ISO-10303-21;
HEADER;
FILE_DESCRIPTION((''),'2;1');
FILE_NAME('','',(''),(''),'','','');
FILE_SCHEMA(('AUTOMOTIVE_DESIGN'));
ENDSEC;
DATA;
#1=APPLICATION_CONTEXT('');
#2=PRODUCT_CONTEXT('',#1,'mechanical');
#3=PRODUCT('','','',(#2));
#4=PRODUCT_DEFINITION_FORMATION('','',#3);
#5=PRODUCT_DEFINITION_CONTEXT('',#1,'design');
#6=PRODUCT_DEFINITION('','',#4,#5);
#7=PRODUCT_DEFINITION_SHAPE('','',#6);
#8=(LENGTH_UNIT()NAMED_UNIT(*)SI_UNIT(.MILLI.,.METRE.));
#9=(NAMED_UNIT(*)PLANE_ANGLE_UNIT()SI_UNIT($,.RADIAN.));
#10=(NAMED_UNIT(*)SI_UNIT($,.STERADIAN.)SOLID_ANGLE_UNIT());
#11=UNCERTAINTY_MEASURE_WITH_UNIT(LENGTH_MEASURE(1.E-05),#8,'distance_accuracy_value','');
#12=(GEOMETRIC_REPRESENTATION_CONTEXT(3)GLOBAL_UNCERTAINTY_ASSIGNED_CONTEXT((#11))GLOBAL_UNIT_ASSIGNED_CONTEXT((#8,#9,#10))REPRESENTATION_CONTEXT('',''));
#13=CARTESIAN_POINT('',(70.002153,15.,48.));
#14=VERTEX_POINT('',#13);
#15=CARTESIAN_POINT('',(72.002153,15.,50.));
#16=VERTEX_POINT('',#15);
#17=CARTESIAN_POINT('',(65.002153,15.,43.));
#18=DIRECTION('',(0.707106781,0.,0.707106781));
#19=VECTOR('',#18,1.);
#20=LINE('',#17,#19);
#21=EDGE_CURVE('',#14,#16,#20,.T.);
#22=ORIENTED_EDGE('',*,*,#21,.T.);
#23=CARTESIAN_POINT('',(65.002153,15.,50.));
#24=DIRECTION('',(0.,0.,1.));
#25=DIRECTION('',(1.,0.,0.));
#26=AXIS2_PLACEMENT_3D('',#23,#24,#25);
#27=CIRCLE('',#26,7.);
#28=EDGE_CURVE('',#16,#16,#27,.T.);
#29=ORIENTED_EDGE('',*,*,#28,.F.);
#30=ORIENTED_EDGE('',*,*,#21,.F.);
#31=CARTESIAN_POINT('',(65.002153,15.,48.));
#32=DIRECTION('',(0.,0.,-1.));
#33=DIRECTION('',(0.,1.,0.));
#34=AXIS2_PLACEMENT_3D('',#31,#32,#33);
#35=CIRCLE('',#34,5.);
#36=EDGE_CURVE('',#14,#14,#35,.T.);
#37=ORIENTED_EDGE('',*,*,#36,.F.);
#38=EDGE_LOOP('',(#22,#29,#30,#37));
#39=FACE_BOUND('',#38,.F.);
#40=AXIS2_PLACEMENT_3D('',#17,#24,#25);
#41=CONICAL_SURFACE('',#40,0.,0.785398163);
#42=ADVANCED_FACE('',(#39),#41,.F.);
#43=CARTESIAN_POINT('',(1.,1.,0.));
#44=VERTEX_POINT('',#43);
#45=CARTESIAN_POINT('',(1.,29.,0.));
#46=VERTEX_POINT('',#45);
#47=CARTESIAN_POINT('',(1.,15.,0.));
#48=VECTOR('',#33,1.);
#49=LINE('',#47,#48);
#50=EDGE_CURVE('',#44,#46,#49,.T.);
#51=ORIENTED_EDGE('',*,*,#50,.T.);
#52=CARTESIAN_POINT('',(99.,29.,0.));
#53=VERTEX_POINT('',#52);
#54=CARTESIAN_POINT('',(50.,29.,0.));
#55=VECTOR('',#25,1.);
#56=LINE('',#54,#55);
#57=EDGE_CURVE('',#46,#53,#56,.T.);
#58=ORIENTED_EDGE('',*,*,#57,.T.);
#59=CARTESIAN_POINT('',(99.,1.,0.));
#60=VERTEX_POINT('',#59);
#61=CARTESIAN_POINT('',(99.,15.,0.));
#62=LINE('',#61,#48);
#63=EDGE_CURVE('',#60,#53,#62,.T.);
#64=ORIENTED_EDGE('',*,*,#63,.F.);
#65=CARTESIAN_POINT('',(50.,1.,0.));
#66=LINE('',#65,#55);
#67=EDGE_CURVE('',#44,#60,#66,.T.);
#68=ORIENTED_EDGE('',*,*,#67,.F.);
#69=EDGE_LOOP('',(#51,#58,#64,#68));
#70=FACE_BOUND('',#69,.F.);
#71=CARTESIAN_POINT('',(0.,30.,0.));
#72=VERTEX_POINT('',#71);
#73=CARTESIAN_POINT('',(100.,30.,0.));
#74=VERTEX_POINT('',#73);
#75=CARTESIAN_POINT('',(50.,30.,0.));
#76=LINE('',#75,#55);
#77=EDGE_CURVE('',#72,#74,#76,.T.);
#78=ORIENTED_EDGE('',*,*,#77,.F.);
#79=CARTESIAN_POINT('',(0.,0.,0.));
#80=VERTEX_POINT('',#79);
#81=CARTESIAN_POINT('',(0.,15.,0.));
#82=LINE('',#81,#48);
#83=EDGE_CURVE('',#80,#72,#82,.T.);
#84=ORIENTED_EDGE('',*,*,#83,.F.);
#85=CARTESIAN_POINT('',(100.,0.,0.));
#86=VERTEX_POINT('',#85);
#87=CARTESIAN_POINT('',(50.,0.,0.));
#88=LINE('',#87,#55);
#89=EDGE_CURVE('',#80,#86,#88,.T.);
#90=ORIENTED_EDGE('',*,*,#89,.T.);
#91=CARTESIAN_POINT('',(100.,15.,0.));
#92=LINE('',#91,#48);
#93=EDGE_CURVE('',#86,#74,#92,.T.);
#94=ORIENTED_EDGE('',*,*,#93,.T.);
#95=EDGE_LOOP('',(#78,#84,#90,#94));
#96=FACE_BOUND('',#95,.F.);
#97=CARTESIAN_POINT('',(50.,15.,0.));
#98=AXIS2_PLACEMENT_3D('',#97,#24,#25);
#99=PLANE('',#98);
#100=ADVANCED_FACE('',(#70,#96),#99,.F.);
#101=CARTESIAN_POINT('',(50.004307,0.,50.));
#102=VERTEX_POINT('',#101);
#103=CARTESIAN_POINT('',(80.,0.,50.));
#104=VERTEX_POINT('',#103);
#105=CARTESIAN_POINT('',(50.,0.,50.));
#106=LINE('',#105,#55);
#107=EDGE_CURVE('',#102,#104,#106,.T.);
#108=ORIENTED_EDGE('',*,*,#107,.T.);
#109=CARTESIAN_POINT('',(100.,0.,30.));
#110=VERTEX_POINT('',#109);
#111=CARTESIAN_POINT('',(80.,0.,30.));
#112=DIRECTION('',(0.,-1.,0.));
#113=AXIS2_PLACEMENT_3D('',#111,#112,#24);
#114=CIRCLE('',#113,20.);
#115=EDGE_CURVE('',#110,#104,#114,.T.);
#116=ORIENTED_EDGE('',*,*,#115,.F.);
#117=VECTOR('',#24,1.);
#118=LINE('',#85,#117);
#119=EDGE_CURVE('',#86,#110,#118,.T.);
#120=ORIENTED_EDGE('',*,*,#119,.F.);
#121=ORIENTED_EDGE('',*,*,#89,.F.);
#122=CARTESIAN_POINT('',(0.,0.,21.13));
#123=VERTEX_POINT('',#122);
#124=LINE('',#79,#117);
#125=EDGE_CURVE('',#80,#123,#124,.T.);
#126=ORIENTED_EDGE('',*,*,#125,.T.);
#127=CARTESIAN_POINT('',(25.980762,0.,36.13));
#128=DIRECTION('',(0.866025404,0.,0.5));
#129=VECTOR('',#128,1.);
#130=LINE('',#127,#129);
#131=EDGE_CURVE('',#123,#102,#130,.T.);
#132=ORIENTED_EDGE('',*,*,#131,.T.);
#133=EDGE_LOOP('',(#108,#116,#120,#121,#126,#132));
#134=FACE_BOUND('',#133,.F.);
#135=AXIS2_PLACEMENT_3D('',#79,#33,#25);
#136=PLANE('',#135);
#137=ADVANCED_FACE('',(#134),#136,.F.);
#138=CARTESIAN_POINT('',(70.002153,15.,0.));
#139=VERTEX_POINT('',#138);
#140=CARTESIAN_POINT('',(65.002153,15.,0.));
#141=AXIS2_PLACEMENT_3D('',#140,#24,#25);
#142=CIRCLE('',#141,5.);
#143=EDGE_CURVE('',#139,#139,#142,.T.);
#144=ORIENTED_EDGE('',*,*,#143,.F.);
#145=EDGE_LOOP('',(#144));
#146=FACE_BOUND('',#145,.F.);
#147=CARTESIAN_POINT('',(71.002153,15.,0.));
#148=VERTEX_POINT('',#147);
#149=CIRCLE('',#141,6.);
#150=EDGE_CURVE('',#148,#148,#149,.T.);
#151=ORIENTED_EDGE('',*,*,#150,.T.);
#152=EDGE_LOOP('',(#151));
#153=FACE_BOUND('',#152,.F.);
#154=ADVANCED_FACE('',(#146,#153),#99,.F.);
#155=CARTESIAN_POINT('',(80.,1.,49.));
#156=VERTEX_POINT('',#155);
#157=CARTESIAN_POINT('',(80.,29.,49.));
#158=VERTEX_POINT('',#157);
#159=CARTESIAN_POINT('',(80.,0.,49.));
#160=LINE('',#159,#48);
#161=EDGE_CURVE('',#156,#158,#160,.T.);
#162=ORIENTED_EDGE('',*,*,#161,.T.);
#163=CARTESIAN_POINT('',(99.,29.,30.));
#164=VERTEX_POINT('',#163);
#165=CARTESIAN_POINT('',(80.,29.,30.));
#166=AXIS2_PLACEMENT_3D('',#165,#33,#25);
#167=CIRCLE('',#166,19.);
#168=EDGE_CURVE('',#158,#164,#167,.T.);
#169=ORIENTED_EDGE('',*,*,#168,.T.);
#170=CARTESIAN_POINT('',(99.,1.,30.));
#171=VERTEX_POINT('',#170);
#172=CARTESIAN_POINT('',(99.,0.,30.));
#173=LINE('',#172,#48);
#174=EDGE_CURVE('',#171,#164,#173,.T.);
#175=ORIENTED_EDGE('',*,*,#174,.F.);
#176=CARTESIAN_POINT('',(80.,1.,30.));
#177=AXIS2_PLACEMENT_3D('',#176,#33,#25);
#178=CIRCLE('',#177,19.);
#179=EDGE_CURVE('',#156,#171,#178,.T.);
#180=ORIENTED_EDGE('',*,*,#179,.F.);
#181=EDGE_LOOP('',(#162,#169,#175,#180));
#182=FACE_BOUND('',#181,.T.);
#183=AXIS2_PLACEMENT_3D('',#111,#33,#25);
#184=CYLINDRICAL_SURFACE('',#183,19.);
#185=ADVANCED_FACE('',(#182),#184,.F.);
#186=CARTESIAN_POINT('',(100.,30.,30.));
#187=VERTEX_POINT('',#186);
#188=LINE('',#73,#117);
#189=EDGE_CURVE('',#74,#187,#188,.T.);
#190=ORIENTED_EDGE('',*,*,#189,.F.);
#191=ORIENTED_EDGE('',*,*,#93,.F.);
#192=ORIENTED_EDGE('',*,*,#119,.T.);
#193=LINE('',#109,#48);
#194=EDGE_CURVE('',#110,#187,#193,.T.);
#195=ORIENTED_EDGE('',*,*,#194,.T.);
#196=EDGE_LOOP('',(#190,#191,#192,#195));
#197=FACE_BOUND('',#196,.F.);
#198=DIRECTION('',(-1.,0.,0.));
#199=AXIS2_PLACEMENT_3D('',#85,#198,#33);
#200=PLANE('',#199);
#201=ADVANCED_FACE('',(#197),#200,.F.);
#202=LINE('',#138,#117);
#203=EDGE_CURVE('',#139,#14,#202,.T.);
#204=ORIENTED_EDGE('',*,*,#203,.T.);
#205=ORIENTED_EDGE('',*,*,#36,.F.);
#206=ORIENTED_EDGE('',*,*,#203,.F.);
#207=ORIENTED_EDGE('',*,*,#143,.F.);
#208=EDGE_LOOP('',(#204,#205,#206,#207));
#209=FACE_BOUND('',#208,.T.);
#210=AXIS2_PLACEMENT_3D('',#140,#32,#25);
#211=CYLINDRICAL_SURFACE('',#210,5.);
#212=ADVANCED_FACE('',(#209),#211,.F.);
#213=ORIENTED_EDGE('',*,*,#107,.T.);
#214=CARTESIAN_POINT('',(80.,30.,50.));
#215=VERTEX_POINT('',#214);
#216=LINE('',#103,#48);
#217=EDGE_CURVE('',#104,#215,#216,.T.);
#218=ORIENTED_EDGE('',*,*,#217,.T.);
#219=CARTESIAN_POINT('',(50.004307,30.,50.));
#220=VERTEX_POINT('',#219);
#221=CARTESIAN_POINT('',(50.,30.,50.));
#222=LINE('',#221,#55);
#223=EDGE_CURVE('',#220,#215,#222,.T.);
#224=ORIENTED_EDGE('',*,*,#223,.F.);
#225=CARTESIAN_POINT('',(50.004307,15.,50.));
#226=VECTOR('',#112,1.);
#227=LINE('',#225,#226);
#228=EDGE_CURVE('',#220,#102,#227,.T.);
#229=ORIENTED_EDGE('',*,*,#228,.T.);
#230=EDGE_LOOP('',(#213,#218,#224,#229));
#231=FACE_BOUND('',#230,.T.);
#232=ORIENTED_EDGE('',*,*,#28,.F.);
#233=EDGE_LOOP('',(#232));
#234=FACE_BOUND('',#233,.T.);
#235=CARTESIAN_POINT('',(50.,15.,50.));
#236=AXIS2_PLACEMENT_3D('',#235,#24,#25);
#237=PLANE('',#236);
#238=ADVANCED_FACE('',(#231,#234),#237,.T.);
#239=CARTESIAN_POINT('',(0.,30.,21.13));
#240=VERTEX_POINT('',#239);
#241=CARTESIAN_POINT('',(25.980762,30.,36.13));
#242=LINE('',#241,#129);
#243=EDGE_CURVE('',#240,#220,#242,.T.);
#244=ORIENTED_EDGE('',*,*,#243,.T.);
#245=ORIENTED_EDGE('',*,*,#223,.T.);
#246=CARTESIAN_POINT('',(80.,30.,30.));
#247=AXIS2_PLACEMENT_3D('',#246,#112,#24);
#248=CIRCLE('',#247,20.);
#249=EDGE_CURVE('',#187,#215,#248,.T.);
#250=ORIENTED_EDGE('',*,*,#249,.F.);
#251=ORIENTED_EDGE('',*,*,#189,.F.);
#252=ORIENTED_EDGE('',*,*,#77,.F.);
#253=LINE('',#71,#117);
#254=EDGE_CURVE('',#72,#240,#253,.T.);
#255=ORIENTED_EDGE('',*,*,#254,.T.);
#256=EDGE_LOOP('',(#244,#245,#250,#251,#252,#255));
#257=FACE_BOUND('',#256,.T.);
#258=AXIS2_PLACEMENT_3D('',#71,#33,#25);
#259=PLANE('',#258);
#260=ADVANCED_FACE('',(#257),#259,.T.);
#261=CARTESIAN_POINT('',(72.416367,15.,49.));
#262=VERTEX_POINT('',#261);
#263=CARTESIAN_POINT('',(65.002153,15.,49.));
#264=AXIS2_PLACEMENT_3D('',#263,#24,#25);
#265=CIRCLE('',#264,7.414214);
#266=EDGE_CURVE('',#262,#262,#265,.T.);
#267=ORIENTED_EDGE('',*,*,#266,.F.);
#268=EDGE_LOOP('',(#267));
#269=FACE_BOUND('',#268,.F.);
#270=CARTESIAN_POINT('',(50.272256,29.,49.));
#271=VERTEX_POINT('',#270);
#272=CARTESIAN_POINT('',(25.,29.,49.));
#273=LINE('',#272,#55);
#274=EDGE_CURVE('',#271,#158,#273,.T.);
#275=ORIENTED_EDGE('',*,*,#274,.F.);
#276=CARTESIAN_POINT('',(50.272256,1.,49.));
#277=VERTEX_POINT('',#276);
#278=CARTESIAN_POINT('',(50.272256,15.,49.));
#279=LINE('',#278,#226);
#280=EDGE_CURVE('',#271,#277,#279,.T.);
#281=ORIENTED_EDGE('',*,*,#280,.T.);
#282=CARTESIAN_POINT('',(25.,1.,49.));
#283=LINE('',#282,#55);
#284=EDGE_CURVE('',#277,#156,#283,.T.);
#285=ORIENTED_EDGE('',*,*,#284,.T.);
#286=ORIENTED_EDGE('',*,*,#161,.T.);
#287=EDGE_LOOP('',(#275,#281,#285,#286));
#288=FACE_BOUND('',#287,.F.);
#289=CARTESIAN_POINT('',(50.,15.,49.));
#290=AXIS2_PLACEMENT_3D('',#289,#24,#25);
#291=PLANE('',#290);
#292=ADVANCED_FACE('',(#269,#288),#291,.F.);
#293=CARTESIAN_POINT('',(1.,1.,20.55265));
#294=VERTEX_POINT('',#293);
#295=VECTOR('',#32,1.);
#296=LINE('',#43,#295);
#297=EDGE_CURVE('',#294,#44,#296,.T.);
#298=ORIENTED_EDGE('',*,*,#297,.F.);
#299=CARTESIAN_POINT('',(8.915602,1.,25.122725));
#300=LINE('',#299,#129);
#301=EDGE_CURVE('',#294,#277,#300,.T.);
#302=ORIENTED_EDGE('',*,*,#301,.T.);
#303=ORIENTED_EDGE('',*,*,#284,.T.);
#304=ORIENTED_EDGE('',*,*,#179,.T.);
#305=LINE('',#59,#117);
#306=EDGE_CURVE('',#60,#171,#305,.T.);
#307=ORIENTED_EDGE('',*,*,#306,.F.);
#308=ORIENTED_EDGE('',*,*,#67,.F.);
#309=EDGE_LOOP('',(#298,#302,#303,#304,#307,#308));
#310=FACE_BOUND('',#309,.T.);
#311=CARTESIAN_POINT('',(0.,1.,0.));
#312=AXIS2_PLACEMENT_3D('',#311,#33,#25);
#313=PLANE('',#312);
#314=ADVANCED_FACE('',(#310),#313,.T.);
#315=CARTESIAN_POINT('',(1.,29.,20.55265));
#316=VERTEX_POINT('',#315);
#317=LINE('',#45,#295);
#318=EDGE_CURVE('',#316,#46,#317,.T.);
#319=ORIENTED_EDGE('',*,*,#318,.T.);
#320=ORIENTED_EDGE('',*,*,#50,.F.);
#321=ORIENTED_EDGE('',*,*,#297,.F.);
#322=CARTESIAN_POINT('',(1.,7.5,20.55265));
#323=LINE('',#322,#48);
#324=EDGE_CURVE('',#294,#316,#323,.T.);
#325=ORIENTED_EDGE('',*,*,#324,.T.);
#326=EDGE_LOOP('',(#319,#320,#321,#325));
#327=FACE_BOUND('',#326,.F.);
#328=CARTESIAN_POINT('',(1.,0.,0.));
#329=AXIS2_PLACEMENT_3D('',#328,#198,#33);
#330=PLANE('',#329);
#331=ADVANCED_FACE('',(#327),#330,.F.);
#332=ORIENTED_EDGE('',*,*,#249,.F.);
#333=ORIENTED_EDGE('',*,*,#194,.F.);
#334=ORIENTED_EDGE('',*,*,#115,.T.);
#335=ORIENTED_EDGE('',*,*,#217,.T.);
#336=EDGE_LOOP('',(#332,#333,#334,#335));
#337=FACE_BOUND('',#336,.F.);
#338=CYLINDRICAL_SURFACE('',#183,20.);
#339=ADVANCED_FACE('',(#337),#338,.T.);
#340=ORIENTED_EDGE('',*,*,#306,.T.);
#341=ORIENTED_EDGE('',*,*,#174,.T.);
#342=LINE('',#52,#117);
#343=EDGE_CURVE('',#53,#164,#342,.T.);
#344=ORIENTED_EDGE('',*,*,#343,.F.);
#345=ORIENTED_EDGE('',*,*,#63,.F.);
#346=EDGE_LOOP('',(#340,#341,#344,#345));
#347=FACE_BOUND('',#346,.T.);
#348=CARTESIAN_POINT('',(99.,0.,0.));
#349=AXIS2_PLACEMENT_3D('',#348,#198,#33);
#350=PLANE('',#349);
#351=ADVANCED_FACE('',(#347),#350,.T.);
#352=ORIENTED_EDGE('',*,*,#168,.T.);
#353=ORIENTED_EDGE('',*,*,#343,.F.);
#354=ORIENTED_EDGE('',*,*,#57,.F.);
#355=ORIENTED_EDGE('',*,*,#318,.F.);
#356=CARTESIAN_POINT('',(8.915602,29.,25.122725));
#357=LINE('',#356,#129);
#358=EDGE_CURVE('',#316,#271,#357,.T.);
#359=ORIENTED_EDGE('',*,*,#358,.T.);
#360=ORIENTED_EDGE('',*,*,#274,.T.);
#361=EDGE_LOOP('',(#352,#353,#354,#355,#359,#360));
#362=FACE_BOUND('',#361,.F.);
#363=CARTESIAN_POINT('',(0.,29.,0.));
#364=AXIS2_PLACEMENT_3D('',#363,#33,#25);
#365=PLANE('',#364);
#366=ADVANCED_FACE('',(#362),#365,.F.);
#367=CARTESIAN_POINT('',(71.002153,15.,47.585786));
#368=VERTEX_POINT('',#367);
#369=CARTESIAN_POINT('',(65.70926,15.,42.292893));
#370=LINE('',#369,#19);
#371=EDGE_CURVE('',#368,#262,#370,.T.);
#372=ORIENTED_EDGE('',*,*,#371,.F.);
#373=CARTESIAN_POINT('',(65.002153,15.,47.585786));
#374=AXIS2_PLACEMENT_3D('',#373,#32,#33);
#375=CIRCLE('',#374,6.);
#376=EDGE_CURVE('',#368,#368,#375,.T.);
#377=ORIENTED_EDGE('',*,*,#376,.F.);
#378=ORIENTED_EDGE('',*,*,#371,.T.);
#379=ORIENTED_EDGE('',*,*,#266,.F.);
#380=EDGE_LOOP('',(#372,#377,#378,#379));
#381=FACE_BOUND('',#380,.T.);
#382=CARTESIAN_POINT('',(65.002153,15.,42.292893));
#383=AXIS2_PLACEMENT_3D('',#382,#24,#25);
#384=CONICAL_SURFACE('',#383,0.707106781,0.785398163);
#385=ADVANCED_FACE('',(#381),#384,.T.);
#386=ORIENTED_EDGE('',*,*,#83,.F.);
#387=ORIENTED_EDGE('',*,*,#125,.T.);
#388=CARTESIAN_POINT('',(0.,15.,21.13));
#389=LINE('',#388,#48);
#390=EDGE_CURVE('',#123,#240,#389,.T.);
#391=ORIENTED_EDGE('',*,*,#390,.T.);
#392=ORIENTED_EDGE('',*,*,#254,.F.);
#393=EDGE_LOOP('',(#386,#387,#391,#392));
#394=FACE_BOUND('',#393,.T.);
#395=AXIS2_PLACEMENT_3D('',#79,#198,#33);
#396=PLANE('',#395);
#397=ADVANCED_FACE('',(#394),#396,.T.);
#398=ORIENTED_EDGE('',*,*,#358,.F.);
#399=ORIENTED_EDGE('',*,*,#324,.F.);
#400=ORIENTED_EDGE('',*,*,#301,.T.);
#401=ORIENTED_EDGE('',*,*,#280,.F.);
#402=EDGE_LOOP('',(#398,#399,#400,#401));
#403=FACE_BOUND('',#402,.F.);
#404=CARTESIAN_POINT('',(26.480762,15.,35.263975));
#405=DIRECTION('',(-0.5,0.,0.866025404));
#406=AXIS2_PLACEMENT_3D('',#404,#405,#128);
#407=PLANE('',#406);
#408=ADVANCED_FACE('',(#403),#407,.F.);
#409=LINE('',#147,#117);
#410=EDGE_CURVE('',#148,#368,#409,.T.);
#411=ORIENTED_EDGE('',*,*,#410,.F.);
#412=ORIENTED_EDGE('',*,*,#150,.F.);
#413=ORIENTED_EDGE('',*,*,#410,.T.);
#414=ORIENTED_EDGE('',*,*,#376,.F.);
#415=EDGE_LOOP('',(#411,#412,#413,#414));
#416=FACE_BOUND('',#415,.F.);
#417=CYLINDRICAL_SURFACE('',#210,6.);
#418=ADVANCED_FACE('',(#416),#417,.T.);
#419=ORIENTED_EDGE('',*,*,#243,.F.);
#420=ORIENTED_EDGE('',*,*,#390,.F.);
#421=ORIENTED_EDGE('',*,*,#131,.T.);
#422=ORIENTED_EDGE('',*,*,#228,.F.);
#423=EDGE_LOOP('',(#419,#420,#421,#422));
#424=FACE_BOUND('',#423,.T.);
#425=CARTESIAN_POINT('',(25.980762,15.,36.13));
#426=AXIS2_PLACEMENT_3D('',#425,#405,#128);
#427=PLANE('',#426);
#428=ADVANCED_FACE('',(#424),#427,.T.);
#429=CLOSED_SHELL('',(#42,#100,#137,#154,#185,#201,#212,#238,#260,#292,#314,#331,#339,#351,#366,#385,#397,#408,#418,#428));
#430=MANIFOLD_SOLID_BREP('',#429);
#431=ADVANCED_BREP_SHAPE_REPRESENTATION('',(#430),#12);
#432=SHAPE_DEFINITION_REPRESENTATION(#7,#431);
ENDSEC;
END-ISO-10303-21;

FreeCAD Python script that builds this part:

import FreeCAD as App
import Part
import Sketcher
from FreeCAD import Vector


def edges_at(feature, points):
    """Names of the edges that pass closest to the given points."""
    edges = feature.Shape.Edges
    near = lambda p: min(range(len(edges)), key=lambda i: edges[i].distToShape(Part.Vertex(*p))[0])
    return sorted({f"Edge{near(p) + 1}" for p in points})


def faces_at(feature, points):
    """Names of the faces that lie closest to the given points."""
    faces = feature.Shape.Faces
    near = lambda p: min(range(len(faces)), key=lambda i: faces[i].distToShape(Part.Vertex(*p))[0])
    return sorted({f"Face{near(p) + 1}" for p in points})


def add_polygon(sketch, points):
    """Adds a closed chain of lines whose ends are joined by coincident constraints."""
    first, n = sketch.GeometryCount, len(points)
    for a, b in zip(points, points[1:] + points[:1]):
        sketch.addGeometry(Part.LineSegment(App.Vector(*a, 0), App.Vector(*b, 0)), False)
    for i in range(n):
        sketch.addConstraint(Sketcher.Constraint("Coincident", first + i, 2, first + (i + 1) % n, 1))

doc = App.newDocument("Part")
body = doc.addObject("PartDesign::Body", "Body")

sketch1 = doc.addObject("Sketcher::SketchObject", "Sketch")
body.addObject(sketch1)
sketch1.AttachmentSupport = (doc.XZ_Plane, [""])
sketch1.MapMode = "FlatFace"
sketch1.AttachmentOffset = App.Placement(Vector(0, 0, -15), App.Rotation())
add_polygon(sketch1, [(65.002153, 43), (72.002153, 50), (65.002153, 50)])
sketch1.addGeometry(Part.LineSegment(Vector(65.002153, 43, 0), Vector(65.002153, 50, 0)), True)
sketch1.addConstraint(Sketcher.Constraint("Horizontal", 1))
sketch1.addConstraint(Sketcher.Constraint("Vertical", 2))
sketch1.addConstraint(Sketcher.Constraint("Vertical", 3))
sketch1.addConstraint(Sketcher.Constraint("Coincident", 3, 1, 2, 2))
sketch1.addConstraint(Sketcher.Constraint("Horizontal", 0, 2, 3, 2))
sketch1.addConstraint(Sketcher.Constraint("Equal", 1, 2))
sketch1.addConstraint(Sketcher.Constraint("DistanceX", 1, 2, 1, 1, 7.0))
sketch1.addConstraint(Sketcher.Constraint("DistanceY", -1, 1, 0, 2, 50.0))
sketch1.addConstraint(Sketcher.Constraint("DistanceX", -1, 1, 0, 2, 72.002153))
revolution = doc.addObject("PartDesign::Revolution", "Revolution")
body.addObject(revolution)
revolution.Profile = sketch1
revolution.ReferenceAxis = (sketch1, ["Axis0"])
revolution.Angle = 360
body2 = doc.addObject("PartDesign::Body", "Body001")

sketch2 = doc.addObject("Sketcher::SketchObject", "Sketch001")
body2.addObject(sketch2)
sketch2.AttachmentSupport = (doc.getObject("XY_Plane001"), [""])
sketch2.MapMode = "FlatFace"
sketch2.addGeometry(Part.Circle(Vector(65.002153, 15, 0), Vector(0, 0, 1), 5), False)
sketch2.addConstraint(Sketcher.Constraint("Diameter", 0, 10.0))
sketch2.addConstraint(Sketcher.Constraint("DistanceY", -1, 1, 0, 3, 15.0))
sketch2.addConstraint(Sketcher.Constraint("DistanceX", -1, 1, 0, 3, 65.002153))
pad1 = doc.addObject("PartDesign::Pad", "Pad")
body2.addObject(pad1)
pad1.Profile = sketch2
pad1.Length = 50
body3 = doc.addObject("PartDesign::Body", "Body002")

sketch3 = doc.addObject("Sketcher::SketchObject", "Sketch002")
body3.addObject(sketch3)
sketch3.AttachmentSupport = (doc.getObject("XY_Plane002"), [""])
sketch3.MapMode = "FlatFace"
add_polygon(sketch3, [(0, 30), (0, 0), (60, 0), (60, 30)])
sketch3.addConstraint(Sketcher.Constraint("Vertical", 0))
sketch3.addConstraint(Sketcher.Constraint("Horizontal", 1))
sketch3.addConstraint(Sketcher.Constraint("Vertical", 2))
sketch3.addConstraint(Sketcher.Constraint("Horizontal", 3))
sketch3.addConstraint(Sketcher.Constraint("Coincident", 0, 2, -1, 1))
sketch3.addConstraint(Sketcher.Constraint("DistanceX", 1, 1, 1, 2, 60.0))
sketch3.addConstraint(Sketcher.Constraint("DistanceY", 0, 2, 0, 1, 30.0))
pad2 = doc.addObject("PartDesign::Pad", "Pad001")
body3.addObject(pad2)
pad2.Profile = sketch3
pad2.Length = 30
body4 = doc.addObject("PartDesign::Body", "Body003")
doc.recompute()

body3.Placement = App.Placement(Vector(0, 0, 21.13), App.Rotation(Vector(0, 1, 0), 330))
boolean = doc.addObject("PartDesign::Boolean", "Boolean")
body4.addObject(boolean)
boolean.Type = "Fuse"
boolean.addObjects([body3])
body5 = doc.addObject("PartDesign::Body", "Body004")

sketch4 = doc.addObject("Sketcher::SketchObject", "Sketch003")
body5.addObject(sketch4)
sketch4.AttachmentSupport = (doc.getObject("XY_Plane004"), [""])
sketch4.MapMode = "FlatFace"
add_polygon(sketch4, [(0, 30), (0, 0), (100, 0), (100, 30)])
sketch4.addConstraint(Sketcher.Constraint("Vertical", 0))
sketch4.addConstraint(Sketcher.Constraint("Horizontal", 1))
sketch4.addConstraint(Sketcher.Constraint("Vertical", 2))
sketch4.addConstraint(Sketcher.Constraint("Horizontal", 3))
sketch4.addConstraint(Sketcher.Constraint("Coincident", 0, 2, -1, 1))
sketch4.addConstraint(Sketcher.Constraint("DistanceX", 1, 1, 1, 2, 100.0))
sketch4.addConstraint(Sketcher.Constraint("DistanceY", 0, 2, 0, 1, 30.0))
pad3 = doc.addObject("PartDesign::Pad", "Pad002")
body5.addObject(pad3)
pad3.Profile = sketch4
pad3.Length = 50
doc.recompute()

fillet = doc.addObject("PartDesign::Fillet", "Fillet")
body5.addObject(fillet)
fillet.Base = (pad3, edges_at(pad3, [(100, 15, 50)]))
fillet.Radius = 20
doc.recompute()

boolean2 = doc.addObject("PartDesign::Boolean", "Boolean001")
body5.addObject(boolean2)
boolean2.Type = "Cut"
boolean2.addObjects([body4])
doc.recompute()

boolean3 = doc.addObject("PartDesign::Boolean", "Boolean002")
body5.addObject(boolean3)
boolean3.Type = "Cut"
boolean3.addObjects([body2])
doc.recompute()

boolean4 = doc.addObject("PartDesign::Boolean", "Boolean003")
body5.addObject(boolean4)
boolean4.Type = "Cut"
boolean4.addObjects([body])
doc.recompute()

thickness = doc.addObject("PartDesign::Thickness", "Thickness")
body5.addObject(thickness)
thickness.Base = (boolean4, faces_at(boolean4, [(50, 15, 0)]))
thickness.Value = 1
thickness.Reversed = True
thickness.Join = "Arc"

doc.recompute()
